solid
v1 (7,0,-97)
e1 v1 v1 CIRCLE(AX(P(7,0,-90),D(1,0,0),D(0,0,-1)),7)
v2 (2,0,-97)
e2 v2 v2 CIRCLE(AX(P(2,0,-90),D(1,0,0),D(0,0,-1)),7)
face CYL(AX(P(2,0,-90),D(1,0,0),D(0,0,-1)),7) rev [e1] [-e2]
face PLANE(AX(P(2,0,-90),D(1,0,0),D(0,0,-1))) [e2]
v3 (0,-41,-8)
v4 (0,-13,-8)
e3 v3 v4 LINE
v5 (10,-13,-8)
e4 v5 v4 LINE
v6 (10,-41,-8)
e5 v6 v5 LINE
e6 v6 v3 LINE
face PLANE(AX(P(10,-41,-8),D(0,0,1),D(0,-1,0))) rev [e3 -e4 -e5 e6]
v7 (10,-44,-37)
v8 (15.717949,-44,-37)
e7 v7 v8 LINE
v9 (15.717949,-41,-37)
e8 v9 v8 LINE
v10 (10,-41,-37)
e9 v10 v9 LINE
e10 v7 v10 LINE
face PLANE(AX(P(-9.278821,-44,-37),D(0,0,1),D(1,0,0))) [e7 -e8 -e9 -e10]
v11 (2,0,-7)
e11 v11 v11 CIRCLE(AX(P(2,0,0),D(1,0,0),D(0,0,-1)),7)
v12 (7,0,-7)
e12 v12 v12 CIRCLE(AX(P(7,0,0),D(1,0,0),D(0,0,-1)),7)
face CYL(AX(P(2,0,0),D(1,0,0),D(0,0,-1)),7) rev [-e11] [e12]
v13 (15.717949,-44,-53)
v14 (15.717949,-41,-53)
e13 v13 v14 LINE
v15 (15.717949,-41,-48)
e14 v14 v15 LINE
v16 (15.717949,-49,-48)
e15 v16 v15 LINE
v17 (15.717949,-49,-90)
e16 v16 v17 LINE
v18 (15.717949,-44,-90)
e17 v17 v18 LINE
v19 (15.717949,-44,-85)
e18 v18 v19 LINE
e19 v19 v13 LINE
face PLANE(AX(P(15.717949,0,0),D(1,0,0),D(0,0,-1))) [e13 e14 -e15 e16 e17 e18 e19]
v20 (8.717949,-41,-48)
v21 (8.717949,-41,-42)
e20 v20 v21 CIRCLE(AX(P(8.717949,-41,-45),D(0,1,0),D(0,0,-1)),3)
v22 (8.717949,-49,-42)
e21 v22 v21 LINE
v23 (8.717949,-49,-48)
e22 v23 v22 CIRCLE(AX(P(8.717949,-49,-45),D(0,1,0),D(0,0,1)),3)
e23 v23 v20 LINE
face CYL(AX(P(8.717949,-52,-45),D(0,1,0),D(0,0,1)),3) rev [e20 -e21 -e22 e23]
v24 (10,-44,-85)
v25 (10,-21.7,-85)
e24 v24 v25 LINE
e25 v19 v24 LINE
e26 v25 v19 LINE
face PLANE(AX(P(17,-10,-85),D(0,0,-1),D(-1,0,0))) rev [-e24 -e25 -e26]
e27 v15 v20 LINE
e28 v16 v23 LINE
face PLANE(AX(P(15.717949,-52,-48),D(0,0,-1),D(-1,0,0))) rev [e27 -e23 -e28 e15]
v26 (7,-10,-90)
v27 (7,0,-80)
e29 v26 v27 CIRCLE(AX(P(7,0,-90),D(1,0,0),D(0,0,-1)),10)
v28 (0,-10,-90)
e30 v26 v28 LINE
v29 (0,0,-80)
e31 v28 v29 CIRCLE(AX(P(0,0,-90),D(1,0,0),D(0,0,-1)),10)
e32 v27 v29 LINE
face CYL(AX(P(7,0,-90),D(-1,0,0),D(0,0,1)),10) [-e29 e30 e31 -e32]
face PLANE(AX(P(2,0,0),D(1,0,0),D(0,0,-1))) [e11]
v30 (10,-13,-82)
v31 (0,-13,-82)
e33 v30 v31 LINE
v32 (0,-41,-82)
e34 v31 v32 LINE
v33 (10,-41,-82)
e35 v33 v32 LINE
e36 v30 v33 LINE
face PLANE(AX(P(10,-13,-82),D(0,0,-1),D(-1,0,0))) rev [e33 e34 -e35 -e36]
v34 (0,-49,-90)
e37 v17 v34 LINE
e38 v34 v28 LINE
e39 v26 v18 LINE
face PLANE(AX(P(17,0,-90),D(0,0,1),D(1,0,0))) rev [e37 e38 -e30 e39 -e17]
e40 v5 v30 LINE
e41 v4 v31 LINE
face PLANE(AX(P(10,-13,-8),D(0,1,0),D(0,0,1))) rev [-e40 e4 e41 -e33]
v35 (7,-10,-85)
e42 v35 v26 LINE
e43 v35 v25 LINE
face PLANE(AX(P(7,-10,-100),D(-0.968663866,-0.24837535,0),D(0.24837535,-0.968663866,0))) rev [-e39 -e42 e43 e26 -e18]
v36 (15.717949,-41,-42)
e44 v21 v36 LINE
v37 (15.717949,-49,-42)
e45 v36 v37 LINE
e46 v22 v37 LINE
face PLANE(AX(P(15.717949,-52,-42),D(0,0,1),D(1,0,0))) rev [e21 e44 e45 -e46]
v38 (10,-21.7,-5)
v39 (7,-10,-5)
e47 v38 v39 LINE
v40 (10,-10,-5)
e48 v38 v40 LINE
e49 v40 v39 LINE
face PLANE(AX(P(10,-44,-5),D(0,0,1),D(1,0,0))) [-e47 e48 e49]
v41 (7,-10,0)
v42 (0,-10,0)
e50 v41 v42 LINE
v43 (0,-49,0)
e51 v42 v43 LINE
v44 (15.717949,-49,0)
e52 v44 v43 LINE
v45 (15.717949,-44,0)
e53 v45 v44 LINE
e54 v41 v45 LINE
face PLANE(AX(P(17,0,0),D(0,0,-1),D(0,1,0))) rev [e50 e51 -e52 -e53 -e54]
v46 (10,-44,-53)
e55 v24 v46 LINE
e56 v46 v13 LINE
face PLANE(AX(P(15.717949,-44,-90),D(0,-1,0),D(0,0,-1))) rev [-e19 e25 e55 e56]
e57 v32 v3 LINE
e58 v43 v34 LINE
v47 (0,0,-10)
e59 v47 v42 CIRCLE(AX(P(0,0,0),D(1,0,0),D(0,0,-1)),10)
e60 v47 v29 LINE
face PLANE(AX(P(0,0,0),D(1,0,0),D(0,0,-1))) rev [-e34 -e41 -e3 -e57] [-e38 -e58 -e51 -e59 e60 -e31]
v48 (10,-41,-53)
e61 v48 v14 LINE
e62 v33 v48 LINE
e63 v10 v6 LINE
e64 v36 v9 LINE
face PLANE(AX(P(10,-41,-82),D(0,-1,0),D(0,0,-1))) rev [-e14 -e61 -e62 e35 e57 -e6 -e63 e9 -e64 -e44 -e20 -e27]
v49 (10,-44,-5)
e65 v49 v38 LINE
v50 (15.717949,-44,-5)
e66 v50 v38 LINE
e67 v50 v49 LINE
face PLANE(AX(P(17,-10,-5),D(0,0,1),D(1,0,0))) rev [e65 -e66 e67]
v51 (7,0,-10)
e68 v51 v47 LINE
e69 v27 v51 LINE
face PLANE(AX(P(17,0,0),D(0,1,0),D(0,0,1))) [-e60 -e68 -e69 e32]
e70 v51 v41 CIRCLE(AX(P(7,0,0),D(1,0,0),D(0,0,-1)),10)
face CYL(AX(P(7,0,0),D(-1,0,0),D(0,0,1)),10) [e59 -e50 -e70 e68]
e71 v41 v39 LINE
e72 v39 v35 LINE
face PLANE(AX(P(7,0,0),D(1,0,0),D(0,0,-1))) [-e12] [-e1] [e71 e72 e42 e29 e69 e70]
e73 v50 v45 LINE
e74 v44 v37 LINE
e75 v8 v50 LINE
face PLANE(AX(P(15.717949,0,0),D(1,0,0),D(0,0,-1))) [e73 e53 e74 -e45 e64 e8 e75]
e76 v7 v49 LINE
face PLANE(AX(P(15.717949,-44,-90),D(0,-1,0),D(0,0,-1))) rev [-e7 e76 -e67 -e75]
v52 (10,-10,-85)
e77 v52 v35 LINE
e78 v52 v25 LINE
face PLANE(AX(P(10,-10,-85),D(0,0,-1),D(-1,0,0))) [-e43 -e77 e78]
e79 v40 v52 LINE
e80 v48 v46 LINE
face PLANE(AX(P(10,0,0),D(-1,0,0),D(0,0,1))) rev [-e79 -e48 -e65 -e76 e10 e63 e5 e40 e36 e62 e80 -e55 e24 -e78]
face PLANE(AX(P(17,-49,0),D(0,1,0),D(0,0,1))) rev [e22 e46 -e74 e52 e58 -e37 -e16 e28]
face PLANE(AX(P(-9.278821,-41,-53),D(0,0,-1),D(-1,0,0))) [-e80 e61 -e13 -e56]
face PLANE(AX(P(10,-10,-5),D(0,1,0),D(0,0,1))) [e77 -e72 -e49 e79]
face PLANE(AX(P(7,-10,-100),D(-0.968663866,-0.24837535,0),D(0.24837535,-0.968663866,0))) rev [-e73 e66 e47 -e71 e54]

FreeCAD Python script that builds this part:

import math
import FreeCAD as App
import Part
import Sketcher
from FreeCAD import Vector

doc = App.newDocument("Part")
params = doc.addObject("Spreadsheet::Sheet", "Params")
for row, (alias, value) in enumerate([
    ("sketch1_diameter", "20 mm"),
    ("pad1_length", "7 mm"),
    ("sketch2_diameter", "20 mm"),
    ("pad2_length", "7 mm"),
    ("sketch3_radius", "10 mm"),
    ("sketch3_width", "39 mm"),
    ("sketch3_height", "70 mm"),
    ("pad3_length", "17 mm"),
    ("sketch4_radius", "10 mm"),
    ("sketch4_height", "90 mm"),
    ("pocket1_length", "10 mm"),
    ("sketch5_width", "10 mm"),
    ("sketch5_height", "39 mm"),
    ("sketch6_diameter", "14 mm"),
    ("pocket3_length", "5 mm"),
    ("sketch7_width", "34 mm"),
    ("sketch7_height", "80 mm"),
    ("sketch8_width", "34 mm"),
    ("sketch8_width2", "28 mm"),
    ("sketch8_height", "80 mm"),
    ("sketch8_height2", "74 mm"),
    ("pad4_length", "10 mm"),
    ("sketch9_height", "5 mm"),
    ("sketch9_width", "8.75 mm"),
    ("sketch10_width", "5 mm"),
    ("sketch10_height", "90 mm"),
    ("pad5_length", "8.75 mm"),
    ("sketch11_width", "3 mm"),
    ("sketch11_height", "16 mm"),
    ("pad6_length", "8.717949 mm"),
    ("sketch12_radius", "3 mm"),
    ("sketch12_width", "7 mm"),
    ("pocket6_length", "11 mm"),
], start=1):
    params.set(f"A{row}", alias)
    params.set(f"B{row}", "=" + value)
    params.setAlias(f"B{row}", alias)

body = doc.addObject("PartDesign::Body", "Body")

sketch1 = doc.addObject("Sketcher::SketchObject", "Sketch")
body.addObject(sketch1)
sketch1.AttachmentSupport = (doc.YZ_Plane, [""])
sketch1.MapMode = "FlatFace"
sketch1.addGeometry(Part.Circle(Vector(0, 0, 0), Vector(0, 0, 1), 10), False)
sketch1.addConstraint([
    Sketcher.Constraint("Coincident", 0, 3, -1, 1),
    Sketcher.Constraint("Diameter", 0, 20.0),
])
sketch1.setExpression("Constraints[1]", "Params.sketch1_diameter")
pad1 = doc.addObject("PartDesign::Pad", "Pad")
body.addObject(pad1)
pad1.Profile = sketch1
pad1.setExpression("Length", "Params.pad1_length")
body2 = doc.addObject("PartDesign::Body", "Body001")

sketch2 = doc.addObject("Sketcher::SketchObject", "Sketch001")
body2.addObject(sketch2)
sketch2.AttachmentSupport = (doc.getObject("YZ_Plane001"), [""])
sketch2.MapMode = "FlatFace"
sketch2.addGeometry(Part.Circle(Vector(0, -90, 0), Vector(0, 0, 1), 10), False)
sketch2.addConstraint([
    Sketcher.Constraint("PointOnObject", 0, 3, -2),
    Sketcher.Constraint("Diameter", 0, 20.0),
    Sketcher.Constraint("DistanceY", 0, 3, -1, 1, 90.0),
])
sketch2.setExpression("Constraints[1]", "Params.sketch2_diameter")
pad2 = doc.addObject("PartDesign::Pad", "Pad001")
body2.addObject(pad2)
pad2.Profile = sketch2
pad2.setExpression("Length", "Params.pad2_length")
body.AllowCompound = True
doc.recompute()

boolean = doc.addObject("PartDesign::Boolean", "Boolean")
body.addObject(boolean)
boolean.Type = "Fuse"
boolean.addObjects([body2])

sketch3 = doc.addObject("Sketcher::SketchObject", "Sketch002")
body.addObject(sketch3)
sketch3.AttachmentSupport = (doc.YZ_Plane, [""])
sketch3.MapMode = "FlatFace"
sketch3.addGeometry([
    Part.LineSegment(Vector(0, -80, 0), Vector(0, -10, 0)),
    Part.ArcOfCircle(Part.Circle(Vector(0, 0, 0), Vector(0, 0, 1), 10), math.radians(180), math.radians(270)),
    Part.LineSegment(Vector(-10, 0, 0), Vector(-49, 0, 0)),
    Part.LineSegment(Vector(-49, 0, 0), Vector(-49, -90, 0)),
    Part.LineSegment(Vector(-49, -90, 0), Vector(-10, -90, 0)),
    Part.ArcOfCircle(Part.Circle(Vector(0, -90, 0), Vector(0, 0, 1), 10), math.radians(90), math.radians(180)),
], False)
sketch3.addConstraint([
    Sketcher.Constraint("Coincident", 0, 2, 1, 2),
    Sketcher.Constraint("Coincident", 1, 1, 2, 1),
    Sketcher.Constraint("Coincident", 2, 2, 3, 1),
    Sketcher.Constraint("Coincident", 3, 2, 4, 1),
    Sketcher.Constraint("Coincident", 4, 2, 5, 2),
    Sketcher.Constraint("Coincident", 5, 1, 0, 1),
    Sketcher.Constraint("Vertical", 0),
    Sketcher.Constraint("Horizontal", 2),
    Sketcher.Constraint("Vertical", 3),
    Sketcher.Constraint("Horizontal", 4),
    Sketcher.Constraint("Coincident", 1, 3, -1, 1),
    Sketcher.Constraint("Equal", 1, 5),
    Sketcher.Constraint("PointOnObject", 5, 3, -2),
    Sketcher.Constraint("PointOnObject", 0, 2, -2),
    Sketcher.Constraint("PointOnObject", 1, 1, -1),
    Sketcher.Constraint("Horizontal", 5, 3, 3, 2),
    Sketcher.Constraint("Radius", 1, 10.0),
    Sketcher.Constraint("DistanceX", 2, 2, 2, 1, 39.0),
    Sketcher.Constraint("DistanceY", 0, 1, 0, 2, 70.0),
])
sketch3.setExpression("Constraints[16]", "Params.sketch3_radius")
sketch3.setExpression("Constraints[17]", "Params.sketch3_width")
sketch3.setExpression("Constraints[18]", "Params.sketch3_height")
pad3 = doc.addObject("PartDesign::Pad", "Pad002")
body.addObject(pad3)
pad3.Profile = sketch3
pad3.setExpression("Length", "Params.pad3_length")

sketch4 = doc.addObject("Sketcher::SketchObject", "Sketch003")
body.addObject(sketch4)
sketch4.AttachmentSupport = (doc.YZ_Plane, [""])
sketch4.MapMode = "FlatFace"
sketch4.AttachmentOffset = App.Placement(Vector(0, 0, 7), App.Rotation())
sketch4.addGeometry([
    Part.LineSegment(Vector(-10, 0, 0), Vector(-10, -90, 0)),
    Part.ArcOfCircle(Part.Circle(Vector(0, -90, 0), Vector(0, 0, 1), 10), math.radians(90), math.radians(180)),
    Part.LineSegment(Vector(0, -80, 0), Vector(0, -10, 0)),
    Part.ArcOfCircle(Part.Circle(Vector(0, 0, 0), Vector(0, 0, 1), 10), math.radians(180), math.radians(270)),
], False)
sketch4.addConstraint([
    Sketcher.Constraint("Tangent", 0, 2, 1, 2),
    Sketcher.Constraint("Coincident", 1, 1, 2, 1),
    Sketcher.Constraint("Coincident", 2, 2, 3, 2),
    Sketcher.Constraint("Tangent", 3, 1, 0, 1),
    Sketcher.Constraint("Vertical", 0),
    Sketcher.Constraint("Vertical", 2),
    Sketcher.Constraint("Coincident", 3, 3, -1, 1),
    Sketcher.Constraint("Equal", 1, 3),
    Sketcher.Constraint("PointOnObject", 1, 1, -2),
    Sketcher.Constraint("Radius", 1, 10.0),
    Sketcher.Constraint("DistanceY", 0, 2, 0, 1, 90.0),
])
sketch4.setExpression("Constraints[9]", "Params.sketch4_radius")
sketch4.setExpression("Constraints[10]", "Params.sketch4_height")
pocket1 = doc.addObject("PartDesign::Pocket", "Pocket")
body.addObject(pocket1)
pocket1.Profile = sketch4
pocket1.setExpression("Length", "Params.pocket1_length")
pocket1.Reversed = True

sketch5 = doc.addObject("Sketcher::SketchObject", "Sketch004")
body.addObject(sketch5)
sketch5.AttachmentSupport = (doc.XY_Plane, [""])
sketch5.MapMode = "FlatFace"
sketch5.addGeometry([
    Part.LineSegment(Vector(7, -10, 0), Vector(17, -49, 0)),
    Part.LineSegment(Vector(17, -49, 0), Vector(17, -10, 0)),
    Part.LineSegment(Vector(17, -10, 0), Vector(7, -10, 0)),
], False)
sketch5.addConstraint([
    Sketcher.Constraint("Coincident", 0, 2, 1, 1),
    Sketcher.Constraint("Coincident", 1, 2, 2, 1),
    Sketcher.Constraint("Coincident", 2, 2, 0, 1),
    Sketcher.Constraint("Vertical", 1),
    Sketcher.Constraint("Horizontal", 2),
    Sketcher.Constraint("DistanceX", 2, 2, 2, 1, 10.0),
    Sketcher.Constraint("DistanceY", 1, 1, 1, 2, 39.0),
    Sketcher.Constraint("DistanceX", -1, 1, 0, 2, 17.0),
    Sketcher.Constraint("DistanceY", 0, 2, -1, 1, 49.0),
])
sketch5.setExpression("Constraints[5]", "Params.sketch5_width")
sketch5.setExpression("Constraints[6]", "Params.sketch5_height")
pocket2 = doc.addObject("PartDesign::Pocket", "Pocket001")
body.addObject(pocket2)
pocket2.Profile = sketch5
pocket2.Type = "ThroughAll"

sketch6 = doc.addObject("Sketcher::SketchObject", "Sketch005")
body.addObject(sketch6)
sketch6.AttachmentSupport = (doc.YZ_Plane, [""])
sketch6.MapMode = "FlatFace"
sketch6.AttachmentOffset = App.Placement(Vector(0, 0, 7), App.Rotation())
sketch6.addGeometry([
    Part.Circle(Vector(0, 0, 0), Vector(0, 0, 1), 7),
    Part.Circle(Vector(0, -90, 0), Vector(0, 0, 1), 7),
], False)
sketch6.addConstraint([
    Sketcher.Constraint("Coincident", 0, 3, -1, 1),
    Sketcher.Constraint("Equal", 0, 1),
    Sketcher.Constraint("PointOnObject", 1, 3, -2),
    Sketcher.Constraint("Diameter", 0, 14.0),
    Sketcher.Constraint("DistanceY", 1, 3, -1, 1, 90.0),
])
sketch6.setExpression("Constraints[3]", "Params.sketch6_diameter")
pocket3 = doc.addObject("PartDesign::Pocket", "Pocket002")
body.addObject(pocket3)
pocket3.Profile = sketch6
pocket3.setExpression("Length", "Params.pocket3_length")

sketch7 = doc.addObject("Sketcher::SketchObject", "Sketch006")
body.addObject(sketch7)
sketch7.AttachmentSupport = (doc.YZ_Plane, [""])
sketch7.MapMode = "FlatFace"
sketch7.addGeometry([
    Part.LineSegment(Vector(-10, -85, 0), Vector(-44, -85, 0)),
    Part.LineSegment(Vector(-44, -85, 0), Vector(-44, -5, 0)),
    Part.LineSegment(Vector(-44, -5, 0), Vector(-10, -5, 0)),
    Part.LineSegment(Vector(-10, -5, 0), Vector(-10, -85, 0)),
], False)
sketch7.addConstraint([
    Sketcher.Constraint("Coincident", 0, 2, 1, 1),
    Sketcher.Constraint("Coincident", 1, 2, 2, 1),
    Sketcher.Constraint("Coincident", 2, 2, 3, 1),
    Sketcher.Constraint("Coincident", 3, 2, 0, 1),
    Sketcher.Constraint("Horizontal", 0),
    Sketcher.Constraint("Vertical", 1),
    Sketcher.Constraint("Horizontal", 2),
    Sketcher.Constraint("Vertical", 3),
    Sketcher.Constraint("DistanceX", 0, 2, 0, 1, 34.0),
    Sketcher.Constraint("DistanceY", 1, 1, 1, 2, 80.0),
    Sketcher.Constraint("DistanceX", 0, 2, -1, 1, 44.0),
    Sketcher.Constraint("DistanceY", 0, 2, -1, 1, 85.0),
])
sketch7.setExpression("Constraints[8]", "Params.sketch7_width")
sketch7.setExpression("Constraints[9]", "Params.sketch7_height")
pocket4 = doc.addObject("PartDesign::Pocket", "Pocket003")
body.addObject(pocket4)
pocket4.Profile = sketch7
pocket4.Type = "ThroughAll"
pocket4.Reversed = True

sketch8 = doc.addObject("Sketcher::SketchObject", "Sketch007")
body.addObject(sketch8)
sketch8.AttachmentSupport = (doc.YZ_Plane, [""])
sketch8.MapMode = "FlatFace"
sketch8.addGeometry([
    Part.LineSegment(Vector(-10, -85, 0), Vector(-44, -85, 0)),
    Part.LineSegment(Vector(-44, -85, 0), Vector(-44, -5, 0)),
    Part.LineSegment(Vector(-44, -5, 0), Vector(-10, -5, 0)),
    Part.LineSegment(Vector(-10, -5, 0), Vector(-10, -85, 0)),
    Part.LineSegment(Vector(-41, -8, 0), Vector(-41, -82, 0)),
    Part.LineSegment(Vector(-41, -82, 0), Vector(-13, -82, 0)),
    Part.LineSegment(Vector(-13, -82, 0), Vector(-13, -8, 0)),
    Part.LineSegment(Vector(-13, -8, 0), Vector(-41, -8, 0)),
], False)
sketch8.addConstraint([
    Sketcher.Constraint("Coincident", 0, 2, 1, 1),
    Sketcher.Constraint("Coincident", 1, 2, 2, 1),
    Sketcher.Constraint("Coincident", 2, 2, 3, 1),
    Sketcher.Constraint("Coincident", 3, 2, 0, 1),
    Sketcher.Constraint("Coincident", 4, 2, 5, 1),
    Sketcher.Constraint("Coincident", 5, 2, 6, 1),
    Sketcher.Constraint("Coincident", 6, 2, 7, 1),
    Sketcher.Constraint("Coincident", 7, 2, 4, 1),
    Sketcher.Constraint("Horizontal", 0),
    Sketcher.Constraint("Vertical", 1),
    Sketcher.Constraint("Horizontal", 2),
    Sketcher.Constraint("Vertical", 3),
    Sketcher.Constraint("Vertical", 4),
    Sketcher.Constraint("Horizontal", 5),
    Sketcher.Constraint("Vertical", 6),
    Sketcher.Constraint("Horizontal", 7),
    Sketcher.Constraint("DistanceX", 0, 2, 0, 1, 34.0),
    Sketcher.Constraint("DistanceX", 5, 1, 5, 2, 28.0),
    Sketcher.Constraint("DistanceY", 1, 1, 1, 2, 80.0),
    Sketcher.Constraint("DistanceY", 4, 2, 4, 1, 74.0),
    Sketcher.Constraint("DistanceX", 0, 2, -1, 1, 44.0),
    Sketcher.Constraint("DistanceY", 0, 2, -1, 1, 85.0),
    Sketcher.Constraint("DistanceX", 4, 2, -1, 1, 41.0),
    Sketcher.Constraint("DistanceY", 4, 2, -1, 1, 82.0),
])
sketch8.setExpression("Constraints[16]", "Params.sketch8_width")
sketch8.setExpression("Constraints[17]", "Params.sketch8_width2")
sketch8.setExpression("Constraints[18]", "Params.sketch8_height")
sketch8.setExpression("Constraints[19]", "Params.sketch8_height2")
pad4 = doc.addObject("PartDesign::Pad", "Pad003")
body.addObject(pad4)
pad4.Profile = sketch8
pad4.setExpression("Length", "Params.pad4_length")

sketch9 = doc.addObject("Sketcher::SketchObject", "Sketch008")
body.addObject(sketch9)
sketch9.AttachmentSupport = (doc.XY_Plane, [""])
sketch9.MapMode = "FlatFace"
sketch9.addGeometry([
    Part.LineSegment(Vector(17, -49, 0), Vector(15.717949, -44, 0)),
    Part.LineSegment(Vector(15.717949, -44, 0), Vector(6.967949, -44, 0)),
    Part.LineSegment(Vector(6.967949, -44, 0), Vector(6.967949, -49, 0)),
    Part.LineSegment(Vector(6.967949, -49, 0), Vector(17, -49, 0)),
], False)
sketch9.addConstraint([
    Sketcher.Constraint("Coincident", 0, 2, 1, 1),
    Sketcher.Constraint("Coincident", 1, 2, 2, 1),
    Sketcher.Constraint("Coincident", 2, 2, 3, 1),
    Sketcher.Constraint("Coincident", 3, 2, 0, 1),
    Sketcher.Constraint("Horizontal", 1),
    Sketcher.Constraint("Vertical", 2),
    Sketcher.Constraint("Horizontal", 3),
    Sketcher.Constraint("DistanceY", 2, 2, 2, 1, 5.0),
    Sketcher.Constraint("DistanceY", 0, 2, -1, 1, 44.0),
    Sketcher.Constraint("DistanceX", -1, 1, 3, 2, 17.0),
    Sketcher.Constraint("DistanceX", 1, 2, 1, 1, 8.75),
    Sketcher.Constraint("DistanceX", 3, 1, 3, 2, 10.032051),
])
sketch9.setExpression("Constraints[7]", "Params.sketch9_height")
sketch9.setExpression("Constraints[10]", "Params.sketch9_width")
pocket5 = doc.addObject("PartDesign::Pocket", "Pocket004")
body.addObject(pocket5)
pocket5.Profile = sketch9
pocket5.Type = "ThroughAll"

sketch10 = doc.addObject("Sketcher::SketchObject", "Sketch009")
body.addObject(sketch10)
sketch10.AttachmentSupport = (doc.YZ_Plane, [""])
sketch10.MapMode = "FlatFace"
sketch10.AttachmentOffset = App.Placement(Vector(0, 0, 6.967949), App.Rotation())
sketch10.addGeometry([
    Part.LineSegment(Vector(-44, 0, 0), Vector(-49, 0, 0)),
    Part.LineSegment(Vector(-49, 0, 0), Vector(-49, -90, 0)),
    Part.LineSegment(Vector(-49, -90, 0), Vector(-44, -90, 0)),
    Part.LineSegment(Vector(-44, -90, 0), Vector(-44, 0, 0)),
], False)
sketch10.addConstraint([
    Sketcher.Constraint("Coincident", 0, 2, 1, 1),
    Sketcher.Constraint("Coincident", 1, 2, 2, 1),
    Sketcher.Constraint("Coincident", 2, 2, 3, 1),
    Sketcher.Constraint("Coincident", 3, 2, 0, 1),
    Sketcher.Constraint("Horizontal", 0),
    Sketcher.Constraint("Vertical", 1),
    Sketcher.Constraint("Horizontal", 2),
    Sketcher.Constraint("Vertical", 3),
    Sketcher.Constraint("PointOnObject", 0, 2, -1),
    Sketcher.Constraint("DistanceX", 0, 2, 0, 1, 5.0),
    Sketcher.Constraint("DistanceY", 1, 2, 1, 1, 90.0),
    Sketcher.Constraint("DistanceX", 0, 2, -1, 1, 49.0),
])
sketch10.setExpression("Constraints[9]", "Params.sketch10_width")
sketch10.setExpression("Constraints[10]", "Params.sketch10_height")
pad5 = doc.addObject("PartDesign::Pad", "Pad004")
body.addObject(pad5)
pad5.Profile = sketch10
pad5.setExpression("Length", "Params.pad5_length")

sketch11 = doc.addObject("Sketcher::SketchObject", "Sketch010")
body.addObject(sketch11)
sketch11.AttachmentSupport = (doc.YZ_Plane, [""])
sketch11.MapMode = "FlatFace"
sketch11.AttachmentOffset = App.Placement(Vector(0, 0, 15.717949), App.Rotation())
sketch11.addGeometry([
    Part.LineSegment(Vector(-41, -37, 0), Vector(-44, -37, 0)),
    Part.LineSegment(Vector(-44, -37, 0), Vector(-44, -53, 0)),
    Part.LineSegment(Vector(-44, -53, 0), Vector(-41, -53, 0)),
    Part.LineSegment(Vector(-41, -53, 0), Vector(-41, -37, 0)),
], False)
sketch11.addConstraint([
    Sketcher.Constraint("Coincident", 0, 2, 1, 1),
    Sketcher.Constraint("Coincident", 1, 2, 2, 1),
    Sketcher.Constraint("Coincident", 2, 2, 3, 1),
    Sketcher.Constraint("Coincident", 3, 2, 0, 1),
    Sketcher.Constraint("Horizontal", 0),
    Sketcher.Constraint("Vertical", 1),
    Sketcher.Constraint("Horizontal", 2),
    Sketcher.Constraint("Vertical", 3),
    Sketcher.Constraint("DistanceX", 0, 2, 0, 1, 3.0),
    Sketcher.Constraint("DistanceY", 1, 2, 1, 1, 16.0),
    Sketcher.Constraint("DistanceX", 0, 2, -1, 1, 44.0),
    Sketcher.Constraint("DistanceY", 0, 2, -1, 1, 37.0),
])
sketch11.setExpression("Constraints[8]", "Params.sketch11_width")
sketch11.setExpression("Constraints[9]", "Params.sketch11_height")
pad6 = doc.addObject("PartDesign::Pad", "Pad005")
body.addObject(pad6)
pad6.Profile = sketch11
pad6.setExpression("Length", "Params.pad6_length")
pad6.Reversed = True

sketch12 = doc.addObject("Sketcher::SketchObject", "Sketch011")
body.addObject(sketch12)
sketch12.AttachmentSupport = (doc.XZ_Plane, [""])
sketch12.MapMode = "FlatFace"
sketch12.AttachmentOffset = App.Placement(Vector(0, 0, 41), App.Rotation())
sketch12.addGeometry([
    Part.LineSegment(Vector(8.717949, -42, 0), Vector(15.717949, -42, 0)),
    Part.LineSegment(Vector(15.717949, -42, 0), Vector(15.717949, -48, 0)),
    Part.LineSegment(Vector(15.717949, -48, 0), Vector(8.717949, -48, 0)),
    Part.ArcOfCircle(Part.Circle(Vector(8.717949, -45, 0), Vector(0, 0, 1), 3), math.radians(90), math.radians(270)),
], False)
sketch12.addConstraint([
    Sketcher.Constraint("Coincident", 0, 2, 1, 1),
    Sketcher.Constraint("Coincident", 1, 2, 2, 1),
    Sketcher.Constraint("Tangent", 2, 2, 3, 2),
    Sketcher.Constraint("Tangent", 3, 1, 0, 1),
    Sketcher.Constraint("Horizontal", 0),
    Sketcher.Constraint("Vertical", 1),
    Sketcher.Constraint("Horizontal", 2),
    Sketcher.Constraint("Radius", 3, 3.0),
    Sketcher.Constraint("DistanceX", 0, 1, 0, 2, 7.0),
    Sketcher.Constraint("DistanceY", 3, 3, -1, 1, 45.0),
    Sketcher.Constraint("DistanceX", -1, 1, 3, 3, 8.717949),
])
sketch12.setExpression("Constraints[7]", "Params.sketch12_radius")
sketch12.setExpression("Constraints[8]", "Params.sketch12_width")
pocket6 = doc.addObject("PartDesign::Pocket", "Pocket005")
body.addObject(pocket6)
pocket6.Profile = sketch12
pocket6.setExpression("Length", "Params.pocket6_length")
pocket6.Reversed = True

doc.recompute()
